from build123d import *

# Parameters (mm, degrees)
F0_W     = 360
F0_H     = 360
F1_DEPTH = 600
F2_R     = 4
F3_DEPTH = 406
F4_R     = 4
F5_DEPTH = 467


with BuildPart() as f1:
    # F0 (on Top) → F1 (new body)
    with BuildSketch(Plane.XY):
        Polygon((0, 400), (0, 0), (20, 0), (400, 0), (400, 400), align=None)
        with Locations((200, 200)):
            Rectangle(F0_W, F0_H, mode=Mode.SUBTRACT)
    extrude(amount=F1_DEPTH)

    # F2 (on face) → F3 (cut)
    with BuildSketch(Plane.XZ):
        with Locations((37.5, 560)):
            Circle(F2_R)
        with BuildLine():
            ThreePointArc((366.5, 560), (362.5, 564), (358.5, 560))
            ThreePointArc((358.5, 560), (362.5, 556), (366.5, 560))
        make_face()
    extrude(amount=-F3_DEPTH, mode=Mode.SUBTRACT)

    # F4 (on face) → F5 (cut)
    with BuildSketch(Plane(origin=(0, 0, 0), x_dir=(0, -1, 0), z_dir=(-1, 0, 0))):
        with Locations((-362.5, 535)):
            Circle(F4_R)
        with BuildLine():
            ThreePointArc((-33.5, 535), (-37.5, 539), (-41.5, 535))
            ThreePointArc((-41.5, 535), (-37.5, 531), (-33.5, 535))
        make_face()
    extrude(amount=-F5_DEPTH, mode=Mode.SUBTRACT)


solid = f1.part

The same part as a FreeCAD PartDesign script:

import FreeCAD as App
import Part
import Sketcher
from FreeCAD import Vector
Q = App.Units.Quantity


def add_polygon(sketch, points):
    """Adds a closed chain of lines whose ends are joined by coincident constraints."""
    first, n = sketch.GeometryCount, len(points)
    for a, b in zip(points, points[1:] + points[:1]):
        sketch.addGeometry(Part.LineSegment(App.Vector(*a, 0), App.Vector(*b, 0)), False)
    for i in range(n):
        sketch.addConstraint(Sketcher.Constraint("Coincident", first + i, 2, first + (i + 1) % n, 1))

doc = App.newDocument("Part")
body = doc.addObject("PartDesign::Body", "Body")

# Sketch on XY plane
sketch1 = doc.addObject("Sketcher::SketchObject", "Sketch")
body.addObject(sketch1)
sketch1.AttachmentSupport = (doc.XY_Plane, [""])
sketch1.MapMode = "FlatFace"
add_polygon(sketch1, [(0, 400), (0, 0), (400, 0), (400, 400)])  # lines 0-3
add_polygon(sketch1, [(380, 20), (20, 20), (20, 380), (380, 380)])  # lines 4-7
sketch1.addConstraint([
    Sketcher.Constraint("Vertical", 0),
    Sketcher.Constraint("Horizontal", 1),
    Sketcher.Constraint("Vertical", 2),
    Sketcher.Constraint("Horizontal", 3),
    Sketcher.Constraint("Horizontal", 4),
    Sketcher.Constraint("Vertical", 5),
    Sketcher.Constraint("Horizontal", 6),
    Sketcher.Constraint("Vertical", 7),
    Sketcher.Constraint("Coincident", 0, 2, -1, 1),
    Sketcher.Constraint("Equal", 3, 0),
    Sketcher.Constraint("Equal", 6, 5),
    Sketcher.Constraint("DistanceX", 1, 1, 1, 2, Q("400 mm")),
    Sketcher.Constraint("DistanceX", 4, 2, 4, 1, Q("360 mm")),
    Sketcher.Constraint("DistanceX", -1, 1, 4, 2, Q("20 mm")),
    Sketcher.Constraint("DistanceY", -1, 1, 4, 2, Q("20 mm")),
])
pad1 = doc.addObject("PartDesign::Pad", "Pad")
body.addObject(pad1)
pad1.Profile = sketch1
pad1.Length = 600

# Sketch on XZ plane
sketch2 = doc.addObject("Sketcher::SketchObject", "Sketch001")
body.addObject(sketch2)
sketch2.AttachmentSupport = (doc.XZ_Plane, [""])
sketch2.MapMode = "FlatFace"
sketch2.addGeometry([
    Part.Circle(Vector(37.5, 560, 0), Vector(0, 0, 1), 4),
    Part.Circle(Vector(362.5, 560, 0), Vector(0, 0, 1), 4),
], False)
sketch2.addConstraint([
    Sketcher.Constraint("Equal", 0, 1),
    Sketcher.Constraint("Horizontal", 0, 3, 1, 3),
    Sketcher.Constraint("Diameter", 0, Q("8 mm")),
    Sketcher.Constraint("DistanceY", -1, 1, 0, 3, Q("560 mm")),
    Sketcher.Constraint("DistanceX", 0, 3, 1, 3, Q("325 mm")),
    Sketcher.Constraint("DistanceX", -1, 1, 0, 3, Q("37.5 mm")),
])
pocket1 = doc.addObject("PartDesign::Pocket", "Pocket")
body.addObject(pocket1)
pocket1.Profile = sketch2
pocket1.Length = 406

# Sketch on YZ plane
sketch3 = doc.addObject("Sketcher::SketchObject", "Sketch002")
body.addObject(sketch3)
sketch3.AttachmentSupport = (doc.YZ_Plane, [""])
sketch3.MapMode = "FlatFace"
sketch3.addGeometry([
    Part.Circle(Vector(362.5, 535, 0), Vector(0, 0, 1), 4),
    Part.Circle(Vector(37.5, 535, 0), Vector(0, 0, 1), 4),
], False)
sketch3.addConstraint([
    Sketcher.Constraint("Equal", 0, 1),
    Sketcher.Constraint("Horizontal", 0, 3, 1, 3),
    Sketcher.Constraint("Diameter", 0, Q("8 mm")),
    Sketcher.Constraint("DistanceY", -1, 1, 0, 3, Q("535 mm")),
    Sketcher.Constraint("DistanceX", 1, 3, 0, 3, Q("325 mm")),
    Sketcher.Constraint("DistanceX", -1, 1, 0, 3, Q("362.5 mm")),
])
pocket2 = doc.addObject("PartDesign::Pocket", "Pocket001")
body.addObject(pocket2)
pocket2.Profile = sketch3
pocket2.Length = 467
pocket2.Reversed = True

doc.recompute()
